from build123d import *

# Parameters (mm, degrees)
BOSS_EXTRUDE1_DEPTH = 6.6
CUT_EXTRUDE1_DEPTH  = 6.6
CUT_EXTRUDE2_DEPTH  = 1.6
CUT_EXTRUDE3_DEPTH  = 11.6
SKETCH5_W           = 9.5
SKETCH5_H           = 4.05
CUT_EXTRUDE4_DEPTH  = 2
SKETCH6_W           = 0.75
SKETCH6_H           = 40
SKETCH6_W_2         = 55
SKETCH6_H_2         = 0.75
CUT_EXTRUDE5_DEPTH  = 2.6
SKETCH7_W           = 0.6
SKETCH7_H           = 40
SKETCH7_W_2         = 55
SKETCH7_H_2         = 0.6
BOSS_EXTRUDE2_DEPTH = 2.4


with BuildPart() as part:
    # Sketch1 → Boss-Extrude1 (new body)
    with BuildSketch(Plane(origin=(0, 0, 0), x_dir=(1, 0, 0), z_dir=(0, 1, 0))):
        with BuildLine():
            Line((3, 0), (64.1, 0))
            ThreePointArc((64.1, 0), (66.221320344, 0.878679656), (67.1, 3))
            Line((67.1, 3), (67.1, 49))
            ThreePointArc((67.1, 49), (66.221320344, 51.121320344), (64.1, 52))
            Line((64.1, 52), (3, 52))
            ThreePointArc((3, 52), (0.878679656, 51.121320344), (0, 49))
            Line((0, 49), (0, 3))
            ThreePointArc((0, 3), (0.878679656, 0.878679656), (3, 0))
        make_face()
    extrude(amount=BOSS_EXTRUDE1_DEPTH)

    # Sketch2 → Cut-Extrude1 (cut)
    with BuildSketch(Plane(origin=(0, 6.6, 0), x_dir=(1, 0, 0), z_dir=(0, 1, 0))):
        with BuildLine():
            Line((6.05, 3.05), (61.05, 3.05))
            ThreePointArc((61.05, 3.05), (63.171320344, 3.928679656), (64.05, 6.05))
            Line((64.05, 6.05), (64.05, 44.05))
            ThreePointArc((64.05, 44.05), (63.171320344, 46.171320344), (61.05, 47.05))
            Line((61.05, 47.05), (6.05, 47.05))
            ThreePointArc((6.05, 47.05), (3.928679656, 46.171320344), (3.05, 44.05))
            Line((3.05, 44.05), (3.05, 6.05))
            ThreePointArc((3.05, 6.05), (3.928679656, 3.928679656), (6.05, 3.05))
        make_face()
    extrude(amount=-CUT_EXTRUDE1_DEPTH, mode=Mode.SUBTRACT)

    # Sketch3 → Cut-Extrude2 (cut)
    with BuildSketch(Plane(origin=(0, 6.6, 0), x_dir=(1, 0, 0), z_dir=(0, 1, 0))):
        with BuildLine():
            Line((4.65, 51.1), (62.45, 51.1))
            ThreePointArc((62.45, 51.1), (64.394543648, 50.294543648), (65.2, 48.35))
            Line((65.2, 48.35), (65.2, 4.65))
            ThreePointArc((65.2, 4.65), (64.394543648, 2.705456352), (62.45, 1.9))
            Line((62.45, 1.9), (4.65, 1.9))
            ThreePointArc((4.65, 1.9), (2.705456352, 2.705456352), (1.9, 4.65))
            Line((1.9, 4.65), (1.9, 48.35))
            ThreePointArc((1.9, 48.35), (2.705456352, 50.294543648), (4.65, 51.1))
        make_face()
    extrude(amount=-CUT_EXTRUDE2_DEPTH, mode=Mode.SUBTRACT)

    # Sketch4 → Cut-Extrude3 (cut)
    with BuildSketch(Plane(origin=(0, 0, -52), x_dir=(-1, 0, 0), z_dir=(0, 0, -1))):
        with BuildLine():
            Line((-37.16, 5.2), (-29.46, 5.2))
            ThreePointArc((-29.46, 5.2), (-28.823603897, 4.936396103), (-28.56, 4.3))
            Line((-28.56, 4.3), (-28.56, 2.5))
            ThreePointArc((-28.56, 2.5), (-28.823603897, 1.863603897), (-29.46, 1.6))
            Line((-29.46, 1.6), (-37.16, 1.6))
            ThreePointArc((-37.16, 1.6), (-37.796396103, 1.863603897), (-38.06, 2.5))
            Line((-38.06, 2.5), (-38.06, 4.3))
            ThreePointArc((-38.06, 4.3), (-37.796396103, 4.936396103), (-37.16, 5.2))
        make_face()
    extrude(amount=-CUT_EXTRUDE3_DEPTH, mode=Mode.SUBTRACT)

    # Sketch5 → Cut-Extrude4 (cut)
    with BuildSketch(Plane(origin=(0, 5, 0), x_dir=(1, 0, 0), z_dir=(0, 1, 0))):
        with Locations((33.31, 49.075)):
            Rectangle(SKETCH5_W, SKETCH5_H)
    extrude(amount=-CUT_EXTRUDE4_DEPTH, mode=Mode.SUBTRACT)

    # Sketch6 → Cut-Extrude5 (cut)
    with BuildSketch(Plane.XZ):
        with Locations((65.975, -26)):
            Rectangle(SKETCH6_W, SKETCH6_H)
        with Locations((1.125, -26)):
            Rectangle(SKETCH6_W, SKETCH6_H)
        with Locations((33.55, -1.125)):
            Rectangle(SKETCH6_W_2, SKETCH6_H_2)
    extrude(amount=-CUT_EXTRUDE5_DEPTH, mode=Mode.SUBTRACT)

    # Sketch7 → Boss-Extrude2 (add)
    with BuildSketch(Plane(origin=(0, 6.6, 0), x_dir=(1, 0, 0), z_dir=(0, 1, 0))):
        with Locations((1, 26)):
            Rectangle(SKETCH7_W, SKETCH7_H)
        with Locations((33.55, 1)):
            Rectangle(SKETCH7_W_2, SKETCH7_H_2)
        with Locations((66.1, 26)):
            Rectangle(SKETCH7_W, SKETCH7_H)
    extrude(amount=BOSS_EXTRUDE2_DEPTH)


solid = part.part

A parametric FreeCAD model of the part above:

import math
import FreeCAD as App
import Part
import Sketcher
from FreeCAD import Vector
Q = App.Units.Quantity

doc = App.newDocument("Part")
body = doc.addObject("PartDesign::Body", "Body")

sketch1 = doc.addObject("Sketcher::SketchObject", "Sketch")
body.addObject(sketch1)
sketch1.AttachmentSupport = (doc.XZ_Plane, [""])
sketch1.MapMode = "FlatFace"
sketch1.addGeometry([
    Part.LineSegment(Vector(3, 0, 0), Vector(64.1, 0, 0)),
    Part.ArcOfCircle(Part.Circle(Vector(64.1, -3, 0), Vector(0, 0, 1), 3), math.radians(0), math.radians(90)),
    Part.LineSegment(Vector(67.1, -3, 0), Vector(67.1, -49, 0)),
    Part.ArcOfCircle(Part.Circle(Vector(64.1, -49, 0), Vector(0, 0, 1), 3), math.radians(-90), math.radians(0)),
    Part.LineSegment(Vector(64.1, -52, 0), Vector(3, -52, 0)),
    Part.ArcOfCircle(Part.Circle(Vector(3, -49, 0), Vector(0, 0, 1), 3), math.radians(180), math.radians(270)),
    Part.LineSegment(Vector(0, -49, 0), Vector(0, -3, 0)),
    Part.ArcOfCircle(Part.Circle(Vector(3, -3, 0), Vector(0, 0, 1), 3), math.radians(90), math.radians(180)),
], False)
sketch1.addConstraint([
    Sketcher.Constraint("Tangent", 0, 2, 1, 2),
    Sketcher.Constraint("Tangent", 1, 1, 2, 1),
    Sketcher.Constraint("Tangent", 2, 2, 3, 2),
    Sketcher.Constraint("Tangent", 3, 1, 4, 1),
    Sketcher.Constraint("Tangent", 4, 2, 5, 2),
    Sketcher.Constraint("Tangent", 5, 1, 6, 1),
    Sketcher.Constraint("Tangent", 6, 2, 7, 2),
    Sketcher.Constraint("Tangent", 7, 1, 0, 1),
    Sketcher.Constraint("Horizontal", 0),
    Sketcher.Constraint("Vertical", 2),
    Sketcher.Constraint("Horizontal", 4),
    Sketcher.Constraint("Vertical", 6),
    Sketcher.Constraint("Equal", 1, 3),
    Sketcher.Constraint("Equal", 3, 5),
    Sketcher.Constraint("Equal", 5, 7),
    Sketcher.Constraint("PointOnObject", 0, 2, -1),
    Sketcher.Constraint("PointOnObject", 5, 1, -2),
    Sketcher.Constraint("Radius", 1, Q("3 mm")),
    Sketcher.Constraint("DistanceY", 2, 2, 2, 1, Q("46 mm")),
    Sketcher.Constraint("DistanceX", 0, 1, 0, 2, Q("61.1 mm")),
])
pad1 = doc.addObject("PartDesign::Pad", "Pad")
body.addObject(pad1)
pad1.Profile = sketch1
pad1.Length = 6.6
pad1.Reversed = True

sketch2 = doc.addObject("Sketcher::SketchObject", "Sketch001")
body.addObject(sketch2)
sketch2.AttachmentSupport = (doc.XZ_Plane, [""])
sketch2.MapMode = "FlatFace"
sketch2.AttachmentOffset = App.Placement(Vector(0, 0, -6.6), App.Rotation())
sketch2.addGeometry([
    Part.LineSegment(Vector(6, -3, 0), Vector(61, -3, 0)),
    Part.ArcOfCircle(Part.Circle(Vector(61.1, -6, 0), Vector(0, 0, 1), 3), math.radians(0), math.radians(90)),
    Part.LineSegment(Vector(64, -6, 0), Vector(64, -44, 0)),
    Part.ArcOfCircle(Part.Circle(Vector(61.1, -44.1, 0), Vector(0, 0, 1), 3), math.radians(-90), math.radians(0)),
    Part.LineSegment(Vector(61, -47, 0), Vector(6, -47, 0)),
    Part.ArcOfCircle(Part.Circle(Vector(6, -44.1, 0), Vector(0, 0, 1), 3), math.radians(180), math.radians(270)),
    Part.LineSegment(Vector(3, -44, 0), Vector(3, -6, 0)),
    Part.ArcOfCircle(Part.Circle(Vector(6, -6, 0), Vector(0, 0, 1), 3), math.radians(90), math.radians(180)),
], False)
sketch2.addConstraint([
    Sketcher.Constraint("Tangent", 0, 2, 1, 2),
    Sketcher.Constraint("Tangent", 1, 1, 2, 1),
    Sketcher.Constraint("Tangent", 2, 2, 3, 2),
    Sketcher.Constraint("Tangent", 3, 1, 4, 1),
    Sketcher.Constraint("Tangent", 4, 2, 5, 2),
    Sketcher.Constraint("Tangent", 5, 1, 6, 1),
    Sketcher.Constraint("Tangent", 6, 2, 7, 2),
    Sketcher.Constraint("Tangent", 7, 1, 0, 1),
    Sketcher.Constraint("Horizontal", 0),
    Sketcher.Constraint("Vertical", 2),
    Sketcher.Constraint("Horizontal", 4),
    Sketcher.Constraint("Vertical", 6),
    Sketcher.Constraint("Equal", 1, 3),
    Sketcher.Constraint("Equal", 3, 5),
    Sketcher.Constraint("Equal", 5, 7),
    Sketcher.Constraint("Radius", 1, Q("3 mm")),
    Sketcher.Constraint("DistanceX", 0, 1, 0, 2, Q("55 mm")),
    Sketcher.Constraint("DistanceY", 2, 2, 2, 1, Q("38 mm")),
    Sketcher.Constraint("DistanceX", -1, 1, 1, 3, Q("61.05 mm")),
    Sketcher.Constraint("DistanceY", 1, 3, -1, 1, Q("6.05 mm")),
])
pocket1 = doc.addObject("PartDesign::Pocket", "Pocket")
body.addObject(pocket1)
pocket1.Profile = sketch2
pocket1.Length = 6.6
pocket1.Reversed = True

sketch3 = doc.addObject("Sketcher::SketchObject", "Sketch002")
body.addObject(sketch3)
sketch3.AttachmentSupport = (doc.XZ_Plane, [""])
sketch3.MapMode = "FlatFace"
sketch3.AttachmentOffset = App.Placement(Vector(0, 0, -6.6), App.Rotation())
sketch3.addGeometry([
    Part.LineSegment(Vector(62.5, -51.1, 0), Vector(4.7, -51.1, 0)),
    Part.ArcOfCircle(Part.Circle(Vector(4.7, -48.3, 0), Vector(0, 0, 1), 2.8), math.radians(-180), math.radians(-90)),
    Part.LineSegment(Vector(1.9, -48.4, 0), Vector(1.9, -4.7, 0)),
    Part.ArcOfCircle(Part.Circle(Vector(4.7, -4.7, 0), Vector(0, 0, 1), 2.8), math.radians(90), math.radians(180)),
    Part.LineSegment(Vector(4.7, -1.9, 0), Vector(62.5, -1.9, 0)),
    Part.ArcOfCircle(Part.Circle(Vector(62.4, -4.7, 0), Vector(0, 0, 1), 2.8), math.radians(0), math.radians(90)),
    Part.LineSegment(Vector(65.2, -4.7, 0), Vector(65.2, -48.4, 0)),
    Part.ArcOfCircle(Part.Circle(Vector(62.4, -48.3, 0), Vector(0, 0, 1), 2.8), math.radians(-90), math.radians(0)),
], False)
sketch3.addConstraint([
    Sketcher.Constraint("Tangent", 0, 2, 1, 2),
    Sketcher.Constraint("Tangent", 1, 1, 2, 1),
    Sketcher.Constraint("Tangent", 2, 2, 3, 2),
    Sketcher.Constraint("Tangent", 3, 1, 4, 1),
    Sketcher.Constraint("Tangent", 4, 2, 5, 2),
    Sketcher.Constraint("Tangent", 5, 1, 6, 1),
    Sketcher.Constraint("Tangent", 6, 2, 7, 2),
    Sketcher.Constraint("Tangent", 7, 1, 0, 1),
    Sketcher.Constraint("Horizontal", 0),
    Sketcher.Constraint("Vertical", 2),
    Sketcher.Constraint("Horizontal", 4),
    Sketcher.Constraint("Vertical", 6),
    Sketcher.Constraint("Equal", 1, 3),
    Sketcher.Constraint("Equal", 3, 5),
    Sketcher.Constraint("Equal", 5, 7),
    Sketcher.Constraint("Radius", 1, Q("2.75 mm")),
    Sketcher.Constraint("DistanceX", 0, 2, 0, 1, Q("57.8 mm")),
    Sketcher.Constraint("DistanceY", 2, 1, 2, 2, Q("43.7 mm")),
    Sketcher.Constraint("DistanceY", 0, 2, -1, 1, Q("51.1 mm")),
    Sketcher.Constraint("DistanceX", -1, 1, 1, 1, Q("1.9 mm")),
])
pocket2 = doc.addObject("PartDesign::Pocket", "Pocket001")
body.addObject(pocket2)
pocket2.Profile = sketch3
pocket2.Length = 1.6
pocket2.Reversed = True

sketch4 = doc.addObject("Sketcher::SketchObject", "Sketch003")
body.addObject(sketch4)
sketch4.AttachmentSupport = (doc.XY_Plane, [""])
sketch4.MapMode = "FlatFace"
sketch4.AttachmentOffset = App.Placement(Vector(0, 0, -52), App.Rotation())
sketch4.addGeometry([
    Part.LineSegment(Vector(29.5, 5.2, 0), Vector(37.2, 5.2, 0)),
    Part.ArcOfCircle(Part.Circle(Vector(37.2, 4.3, 0), Vector(0, 0, 1), 0.9), math.radians(0), math.radians(90)),
    Part.LineSegment(Vector(38.1, 4.3, 0), Vector(38.1, 2.5, 0)),
    Part.ArcOfCircle(Part.Circle(Vector(37.2, 2.5, 0), Vector(0, 0, 1), 0.9), math.radians(-90), math.radians(0)),
    Part.LineSegment(Vector(37.2, 1.6, 0), Vector(29.5, 1.6, 0)),
    Part.ArcOfCircle(Part.Circle(Vector(29.5, 2.5, 0), Vector(0, 0, 1), 0.9), math.radians(180), math.radians(270)),
    Part.LineSegment(Vector(28.6, 2.5, 0), Vector(28.6, 4.3, 0)),
    Part.ArcOfCircle(Part.Circle(Vector(29.5, 4.3, 0), Vector(0, 0, 1), 0.9), math.radians(90), math.radians(180)),
], False)
sketch4.addConstraint([
    Sketcher.Constraint("Tangent", 0, 2, 1, 2),
    Sketcher.Constraint("Tangent", 1, 1, 2, 1),
    Sketcher.Constraint("Tangent", 2, 2, 3, 2),
    Sketcher.Constraint("Tangent", 3, 1, 4, 1),
    Sketcher.Constraint("Tangent", 4, 2, 5, 2),
    Sketcher.Constraint("Tangent", 5, 1, 6, 1),
    Sketcher.Constraint("Tangent", 6, 2, 7, 2),
    Sketcher.Constraint("Tangent", 7, 1, 0, 1),
    Sketcher.Constraint("Horizontal", 0),
    Sketcher.Constraint("Vertical", 2),
    Sketcher.Constraint("Horizontal", 4),
    Sketcher.Constraint("Vertical", 6),
    Sketcher.Constraint("Equal", 1, 3),
    Sketcher.Constraint("Equal", 3, 5),
    Sketcher.Constraint("Equal", 5, 7),
    Sketcher.Constraint("Radius", 1, Q("0.9 mm")),
    Sketcher.Constraint("DistanceX", 0, 1, 0, 2, Q("7.7 mm")),
    Sketcher.Constraint("DistanceY", 2, 2, 2, 1, Q("1.8 mm")),
    Sketcher.Constraint("DistanceY", -1, 1, 1, 3, Q("4.3 mm")),
    Sketcher.Constraint("DistanceX", -1, 1, 1, 3, Q("37.16 mm")),
])
pocket3 = doc.addObject("PartDesign::Pocket", "Pocket002")
body.addObject(pocket3)
pocket3.Profile = sketch4
pocket3.Length = 11.6
pocket3.Reversed = True

sketch5 = doc.addObject("Sketcher::SketchObject", "Sketch004")
body.addObject(sketch5)
sketch5.AttachmentSupport = (doc.XZ_Plane, [""])
sketch5.MapMode = "FlatFace"
sketch5.AttachmentOffset = App.Placement(Vector(0, 0, -5), App.Rotation())
sketch5.addGeometry([
    Part.LineSegment(Vector(28.6, -51.1, 0), Vector(28.6, -47, 0)),
    Part.LineSegment(Vector(28.6, -47, 0), Vector(38.1, -47, 0)),
    Part.LineSegment(Vector(38.1, -47, 0), Vector(38.1, -51.1, 0)),
    Part.LineSegment(Vector(38.1, -51.1, 0), Vector(28.6, -51.1, 0)),
], False)
sketch5.addConstraint([
    Sketcher.Constraint("Coincident", 0, 2, 1, 1),
    Sketcher.Constraint("Coincident", 1, 2, 2, 1),
    Sketcher.Constraint("Coincident", 2, 2, 3, 1),
    Sketcher.Constraint("Coincident", 3, 2, 0, 1),
    Sketcher.Constraint("Vertical", 0),
    Sketcher.Constraint("Horizontal", 1),
    Sketcher.Constraint("Vertical", 2),
    Sketcher.Constraint("Horizontal", 3),
    Sketcher.Constraint("DistanceX", 1, 1, 1, 2, Q("9.5 mm")),
    Sketcher.Constraint("DistanceY", 0, 1, 0, 2, Q("4.05 mm")),
    Sketcher.Constraint("DistanceY", 2, 2, -1, 1, Q("51.1 mm")),
    Sketcher.Constraint("DistanceX", -1, 1, 0, 2, Q("28.56 mm")),
])
pocket4 = doc.addObject("PartDesign::Pocket", "Pocket003")
body.addObject(pocket4)
pocket4.Profile = sketch5
pocket4.Length = 2
pocket4.Reversed = True

sketch6 = doc.addObject("Sketcher::SketchObject", "Sketch005")
body.addObject(sketch6)
sketch6.AttachmentSupport = (doc.XZ_Plane, [""])
sketch6.MapMode = "FlatFace"
sketch6.addGeometry([
    Part.LineSegment(Vector(65.6, -6, 0), Vector(65.6, -46, 0)),
    Part.LineSegment(Vector(65.6, -46, 0), Vector(66.3, -46, 0)),
    Part.LineSegment(Vector(66.3, -46, 0), Vector(66.3, -6, 0)),
    Part.LineSegment(Vector(66.3, -6, 0), Vector(65.6, -6, 0)),
    Part.LineSegment(Vector(0.8, -6, 0), Vector(0.8, -46, 0)),
    Part.LineSegment(Vector(0.8, -46, 0), Vector(1.5, -46, 0)),
    Part.LineSegment(Vector(1.5, -46, 0), Vector(1.5, -6, 0)),
    Part.LineSegment(Vector(1.5, -6, 0), Vector(0.8, -6, 0)),
    Part.LineSegment(Vector(6, -0.8, 0), Vector(6, -1.5, 0)),
    Part.LineSegment(Vector(6, -1.5, 0), Vector(61, -1.5, 0)),
    Part.LineSegment(Vector(61, -1.5, 0), Vector(61, -0.8, 0)),
    Part.LineSegment(Vector(61, -0.8, 0), Vector(6, -0.8, 0)),
], False)
sketch6.addConstraint([
    Sketcher.Constraint("Coincident", 0, 2, 1, 1),
    Sketcher.Constraint("Coincident", 1, 2, 2, 1),
    Sketcher.Constraint("Coincident", 2, 2, 3, 1),
    Sketcher.Constraint("Coincident", 3, 2, 0, 1),
    Sketcher.Constraint("Coincident", 4, 2, 5, 1),
    Sketcher.Constraint("Coincident", 5, 2, 6, 1),
    Sketcher.Constraint("Coincident", 6, 2, 7, 1),
    Sketcher.Constraint("Coincident", 7, 2, 4, 1),
    Sketcher.Constraint("Coincident", 8, 2, 9, 1),
    Sketcher.Constraint("Coincident", 9, 2, 10, 1),
    Sketcher.Constraint("Coincident", 10, 2, 11, 1),
    Sketcher.Constraint("Coincident", 11, 2, 8, 1),
    Sketcher.Constraint("Vertical", 0),
    Sketcher.Constraint("Horizontal", 1),
    Sketcher.Constraint("Vertical", 2),
    Sketcher.Constraint("Horizontal", 3),
    Sketcher.Constraint("Vertical", 4),
    Sketcher.Constraint("Horizontal", 5),
    Sketcher.Constraint("Vertical", 6),
    Sketcher.Constraint("Horizontal", 7),
    Sketcher.Constraint("Vertical", 8),
    Sketcher.Constraint("Horizontal", 9),
    Sketcher.Constraint("Vertical", 10),
    Sketcher.Constraint("Horizontal", 11),
    Sketcher.Constraint("Horizontal", 1, 2, 4, 2),
    Sketcher.Constraint("Horizontal", 3, 2, 6, 2),
    Sketcher.Constraint("Equal", 3, 5),
    Sketcher.Constraint("Equal", 7, 8),
    Sketcher.Constraint("DistanceX", 9, 1, 9, 2, Q("55 mm")),
    Sketcher.Constraint("DistanceY", 0, 2, 0, 1, Q("40 mm")),
    Sketcher.Constraint("DistanceY", 0, 2, -1, 1, Q("46 mm")),
    Sketcher.Constraint("DistanceX", 1, 1, 1, 2, Q("0.75 mm")),
    Sketcher.Constraint("DistanceX", -1, 1, 0, 2, Q("65.6 mm")),
    Sketcher.Constraint("DistanceX", -1, 1, 5, 2, Q("1.5 mm")),
    Sketcher.Constraint("DistanceY", 8, 2, -1, 1, Q("1.5 mm")),
    Sketcher.Constraint("DistanceX", 7, 2, 8, 2, Q("5.3 mm")),
])
pocket5 = doc.addObject("PartDesign::Pocket", "Pocket004")
body.addObject(pocket5)
pocket5.Profile = sketch6
pocket5.Length = 2.6

sketch7 = doc.addObject("Sketcher::SketchObject", "Sketch006")
body.addObject(sketch7)
sketch7.AttachmentSupport = (doc.XZ_Plane, [""])
sketch7.MapMode = "FlatFace"
sketch7.AttachmentOffset = App.Placement(Vector(0, 0, -6.6), App.Rotation())
sketch7.addGeometry([
    Part.LineSegment(Vector(0.7, -46, 0), Vector(0.7, -6, 0)),
    Part.LineSegment(Vector(0.7, -6, 0), Vector(1.3, -6, 0)),
    Part.LineSegment(Vector(1.3, -6, 0), Vector(1.3, -46, 0)),
    Part.LineSegment(Vector(1.3, -46, 0), Vector(0.7, -46, 0)),
    Part.LineSegment(Vector(6, -1.3, 0), Vector(6, -0.7, 0)),
    Part.LineSegment(Vector(6, -0.7, 0), Vector(61, -0.7, 0)),
    Part.LineSegment(Vector(61, -0.7, 0), Vector(61, -1.3, 0)),
    Part.LineSegment(Vector(61, -1.3, 0), Vector(6, -1.3, 0)),
    Part.LineSegment(Vector(65.8, -46, 0), Vector(65.8, -6, 0)),
    Part.LineSegment(Vector(65.8, -6, 0), Vector(66.4, -6, 0)),
    Part.LineSegment(Vector(66.4, -6, 0), Vector(66.4, -46, 0)),
    Part.LineSegment(Vector(66.4, -46, 0), Vector(65.8, -46, 0)),
], False)
sketch7.addConstraint([
    Sketcher.Constraint("Coincident", 0, 2, 1, 1),
    Sketcher.Constraint("Coincident", 1, 2, 2, 1),
    Sketcher.Constraint("Coincident", 2, 2, 3, 1),
    Sketcher.Constraint("Coincident", 3, 2, 0, 1),
    Sketcher.Constraint("Coincident", 4, 2, 5, 1),
    Sketcher.Constraint("Coincident", 5, 2, 6, 1),
    Sketcher.Constraint("Coincident", 6, 2, 7, 1),
    Sketcher.Constraint("Coincident", 7, 2, 4, 1),
    Sketcher.Constraint("Coincident", 8, 2, 9, 1),
    Sketcher.Constraint("Coincident", 9, 2, 10, 1),
    Sketcher.Constraint("Coincident", 10, 2, 11, 1),
    Sketcher.Constraint("Coincident", 11, 2, 8, 1),
    Sketcher.Constraint("Vertical", 0),
    Sketcher.Constraint("Horizontal", 1),
    Sketcher.Constraint("Vertical", 2),
    Sketcher.Constraint("Horizontal", 3),
    Sketcher.Constraint("Vertical", 4),
    Sketcher.Constraint("Horizontal", 5),
    Sketcher.Constraint("Vertical", 6),
    Sketcher.Constraint("Horizontal", 7),
    Sketcher.Constraint("Vertical", 8),
    Sketcher.Constraint("Horizontal", 9),
    Sketcher.Constraint("Vertical", 10),
    Sketcher.Constraint("Horizontal", 11),
    Sketcher.Constraint("Horizontal", 1, 2, 8, 2),
    Sketcher.Constraint("Horizontal", 3, 2, 10, 2),
    Sketcher.Constraint("Equal", 3, 9),
    Sketcher.Constraint("Equal", 11, 4),
    Sketcher.Constraint("DistanceX", 5, 1, 5, 2, Q("55 mm")),
    Sketcher.Constraint("DistanceY", 0, 1, 0, 2, Q("40 mm")),
    Sketcher.Constraint("DistanceX", 1, 1, 1, 2, Q("0.6 mm")),
    Sketcher.Constraint("DistanceY", 0, 2, -1, 1, Q("6 mm")),
    Sketcher.Constraint("DistanceX", -1, 1, 0, 2, Q("0.7 mm")),
    Sketcher.Constraint("DistanceY", 4, 2, -1, 1, Q("0.7 mm")),
    Sketcher.Constraint("DistanceX", -1, 1, 8, 2, Q("65.8 mm")),
    Sketcher.Constraint("DistanceX", -1, 1, 4, 2, Q("6.05 mm")),
])
pad2 = doc.addObject("PartDesign::Pad", "Pad001")
body.addObject(pad2)
pad2.Profile = sketch7
pad2.Length = 2.4
pad2.Reversed = True

doc.recompute()
